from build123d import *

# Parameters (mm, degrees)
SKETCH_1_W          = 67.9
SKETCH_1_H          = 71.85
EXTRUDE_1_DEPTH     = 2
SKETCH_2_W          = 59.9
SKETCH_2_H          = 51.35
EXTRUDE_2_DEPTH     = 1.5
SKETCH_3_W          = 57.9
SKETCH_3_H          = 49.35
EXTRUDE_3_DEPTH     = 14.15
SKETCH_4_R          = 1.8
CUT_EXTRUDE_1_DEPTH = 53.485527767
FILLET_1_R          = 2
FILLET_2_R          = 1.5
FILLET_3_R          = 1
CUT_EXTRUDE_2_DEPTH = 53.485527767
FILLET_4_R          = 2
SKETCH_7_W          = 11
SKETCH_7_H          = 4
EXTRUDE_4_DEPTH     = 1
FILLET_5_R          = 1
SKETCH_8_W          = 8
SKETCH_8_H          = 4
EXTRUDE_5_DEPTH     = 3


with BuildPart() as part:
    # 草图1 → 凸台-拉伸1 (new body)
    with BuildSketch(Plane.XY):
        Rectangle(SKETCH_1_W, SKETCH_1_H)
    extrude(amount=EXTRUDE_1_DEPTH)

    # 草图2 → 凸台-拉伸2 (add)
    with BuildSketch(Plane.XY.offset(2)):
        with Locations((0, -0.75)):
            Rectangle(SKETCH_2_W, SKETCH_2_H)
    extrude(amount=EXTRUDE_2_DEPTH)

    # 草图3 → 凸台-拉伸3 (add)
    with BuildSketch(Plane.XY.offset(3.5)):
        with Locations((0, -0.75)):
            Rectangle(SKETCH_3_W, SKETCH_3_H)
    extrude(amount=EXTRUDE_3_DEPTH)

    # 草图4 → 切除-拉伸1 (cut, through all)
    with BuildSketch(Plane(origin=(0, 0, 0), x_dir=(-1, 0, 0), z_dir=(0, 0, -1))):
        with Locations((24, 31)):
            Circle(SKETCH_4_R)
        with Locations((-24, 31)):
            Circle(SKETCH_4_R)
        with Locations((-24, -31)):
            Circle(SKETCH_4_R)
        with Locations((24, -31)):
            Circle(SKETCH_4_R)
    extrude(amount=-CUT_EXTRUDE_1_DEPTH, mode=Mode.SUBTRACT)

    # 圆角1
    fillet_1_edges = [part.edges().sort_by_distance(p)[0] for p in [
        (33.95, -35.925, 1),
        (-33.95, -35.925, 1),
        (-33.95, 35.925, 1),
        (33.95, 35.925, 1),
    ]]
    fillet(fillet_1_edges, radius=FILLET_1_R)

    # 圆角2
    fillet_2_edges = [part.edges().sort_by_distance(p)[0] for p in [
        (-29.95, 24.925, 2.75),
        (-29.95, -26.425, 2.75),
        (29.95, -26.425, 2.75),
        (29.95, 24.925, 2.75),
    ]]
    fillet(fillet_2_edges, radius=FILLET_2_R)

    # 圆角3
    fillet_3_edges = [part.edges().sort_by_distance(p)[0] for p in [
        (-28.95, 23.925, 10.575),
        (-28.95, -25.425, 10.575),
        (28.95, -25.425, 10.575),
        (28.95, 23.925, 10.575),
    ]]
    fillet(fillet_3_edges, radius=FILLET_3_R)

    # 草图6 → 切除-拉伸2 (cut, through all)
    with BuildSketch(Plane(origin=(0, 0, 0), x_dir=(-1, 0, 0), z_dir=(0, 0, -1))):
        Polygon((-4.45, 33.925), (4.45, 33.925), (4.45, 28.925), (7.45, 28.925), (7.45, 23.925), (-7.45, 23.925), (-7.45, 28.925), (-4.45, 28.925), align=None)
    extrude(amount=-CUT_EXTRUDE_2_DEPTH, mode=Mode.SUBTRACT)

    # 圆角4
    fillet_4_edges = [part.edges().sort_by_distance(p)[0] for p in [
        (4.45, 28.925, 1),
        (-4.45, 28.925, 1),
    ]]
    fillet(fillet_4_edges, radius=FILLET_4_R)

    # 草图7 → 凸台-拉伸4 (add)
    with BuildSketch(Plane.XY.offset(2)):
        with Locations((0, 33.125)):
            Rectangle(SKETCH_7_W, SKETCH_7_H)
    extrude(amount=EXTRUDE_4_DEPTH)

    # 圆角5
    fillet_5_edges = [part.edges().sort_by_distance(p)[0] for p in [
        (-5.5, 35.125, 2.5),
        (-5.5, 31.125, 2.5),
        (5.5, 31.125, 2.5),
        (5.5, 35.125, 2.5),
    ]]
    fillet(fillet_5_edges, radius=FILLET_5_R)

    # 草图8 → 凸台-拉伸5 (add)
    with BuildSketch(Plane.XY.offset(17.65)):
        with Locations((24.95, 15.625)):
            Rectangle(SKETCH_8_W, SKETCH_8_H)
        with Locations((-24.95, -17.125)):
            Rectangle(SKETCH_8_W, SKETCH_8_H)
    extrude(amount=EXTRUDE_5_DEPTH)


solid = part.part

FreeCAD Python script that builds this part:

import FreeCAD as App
import Part
import Sketcher

V = App.Vector
Q = App.Units.Quantity


def edges_at(feature, points):
    """Names of the edges that pass closest to the given points."""
    edges = feature.Shape.Edges
    near = lambda p: min(range(len(edges)), key=lambda i: edges[i].distToShape(Part.Vertex(*p))[0])
    return sorted({f"Edge{near(p) + 1}" for p in points})

doc = App.newDocument("Part")
body = doc.addObject("PartDesign::Body", "Body")

sketch1 = body.newObject("Sketcher::SketchObject", "Sketch")
sketch1.AttachmentSupport = (doc.getObject("XY_Plane"), [""])
sketch1.MapMode = "FlatFace"
sketch1.addGeometry([
    Part.LineSegment(V(-34, 36, 0), V(-34, -36, 0)),
    Part.LineSegment(V(-34, -36, 0), V(34, -36, 0)),
    Part.LineSegment(V(34, -36, 0), V(34, 36, 0)),
    Part.LineSegment(V(34, 36, 0), V(-34, 36, 0)),
], False)
sketch1.addConstraint([
    Sketcher.Constraint("Coincident", 0, 2, 1, 1),
    Sketcher.Constraint("Coincident", 1, 2, 2, 1),
    Sketcher.Constraint("Coincident", 2, 2, 3, 1),
    Sketcher.Constraint("Coincident", 3, 2, 0, 1),
    Sketcher.Constraint("Vertical", 0),
    Sketcher.Constraint("Horizontal", 1),
    Sketcher.Constraint("Vertical", 2),
    Sketcher.Constraint("Horizontal", 3),
    Sketcher.Constraint("Symmetric", 0, 2, 2, 2, -1, 1),
    Sketcher.Constraint("DistanceX", 1, 1, 1, 2, Q("67.9 mm")),
    Sketcher.Constraint("DistanceY", 0, 2, 0, 1, Q("71.85 mm")),
])
pad1 = body.newObject("PartDesign::Pad", "Pad")
pad1.Profile = sketch1
pad1.Length = 2

sketch2 = body.newObject("Sketcher::SketchObject", "Sketch001")
sketch2.AttachmentSupport = (doc.getObject("XY_Plane"), [""])
sketch2.MapMode = "FlatFace"
sketch2.AttachmentOffset = App.Placement(V(0, 0, 2), App.Rotation())
sketch2.addGeometry([
    Part.LineSegment(V(-30, 25, 0), V(-30, -26, 0)),
    Part.LineSegment(V(-30, -26, 0), V(30, -26, 0)),
    Part.LineSegment(V(30, -26, 0), V(30, 25, 0)),
    Part.LineSegment(V(30, 25, 0), V(-30, 25, 0)),
], False)
sketch2.addConstraint([
    Sketcher.Constraint("Coincident", 0, 2, 1, 1),
    Sketcher.Constraint("Coincident", 1, 2, 2, 1),
    Sketcher.Constraint("Coincident", 2, 2, 3, 1),
    Sketcher.Constraint("Coincident", 3, 2, 0, 1),
    Sketcher.Constraint("Vertical", 0),
    Sketcher.Constraint("Horizontal", 1),
    Sketcher.Constraint("Vertical", 2),
    Sketcher.Constraint("Horizontal", 3),
    Sketcher.Constraint("DistanceX", 1, 1, 1, 2, Q("59.9 mm")),
    Sketcher.Constraint("DistanceY", 0, 2, 0, 1, Q("51.35 mm")),
    Sketcher.Constraint("DistanceX", 0, 2, -1, 1, Q("29.95 mm")),
    Sketcher.Constraint("DistanceY", 0, 2, -1, 1, Q("26.425 mm")),
])
pad2 = body.newObject("PartDesign::Pad", "Pad001")
pad2.Profile = sketch2
pad2.Length = 1.5

sketch3 = body.newObject("Sketcher::SketchObject", "Sketch002")
sketch3.AttachmentSupport = (doc.getObject("XY_Plane"), [""])
sketch3.MapMode = "FlatFace"
sketch3.AttachmentOffset = App.Placement(V(0, 0, 3.5), App.Rotation())
sketch3.addGeometry([
    Part.LineSegment(V(-29, 24, 0), V(-29, -25, 0)),
    Part.LineSegment(V(-29, -25, 0), V(29, -25, 0)),
    Part.LineSegment(V(29, -25, 0), V(29, 24, 0)),
    Part.LineSegment(V(29, 24, 0), V(-29, 24, 0)),
], False)
sketch3.addConstraint([
    Sketcher.Constraint("Coincident", 0, 2, 1, 1),
    Sketcher.Constraint("Coincident", 1, 2, 2, 1),
    Sketcher.Constraint("Coincident", 2, 2, 3, 1),
    Sketcher.Constraint("Coincident", 3, 2, 0, 1),
    Sketcher.Constraint("Vertical", 0),
    Sketcher.Constraint("Horizontal", 1),
    Sketcher.Constraint("Vertical", 2),
    Sketcher.Constraint("Horizontal", 3),
    Sketcher.Constraint("DistanceX", 1, 1, 1, 2, Q("57.9 mm")),
    Sketcher.Constraint("DistanceY", 0, 2, 0, 1, Q("49.35 mm")),
    Sketcher.Constraint("DistanceX", 0, 2, -1, 1, Q("28.95 mm")),
    Sketcher.Constraint("DistanceY", 0, 2, -1, 1, Q("25.425 mm")),
])
pad3 = body.newObject("PartDesign::Pad", "Pad002")
pad3.Profile = sketch3
pad3.Length = 14.15

sketch4 = body.newObject("Sketcher::SketchObject", "Sketch003")
sketch4.AttachmentSupport = (doc.getObject("XY_Plane"), [""])
sketch4.MapMode = "FlatFace"
sketch4.addGeometry([
    Part.Circle(V(-24, 31, 0), V(0, 0, 1), 1.8),
    Part.Circle(V(24, 31, 0), V(0, 0, 1), 1.8),
    Part.Circle(V(24, -31, 0), V(0, 0, 1), 1.8),
    Part.Circle(V(-24, -31, 0), V(0, 0, 1), 1.8),
], False)
sketch4.addConstraint([
    Sketcher.Constraint("Equal", 0, 1),
    Sketcher.Constraint("Equal", 1, 2),
    Sketcher.Constraint("Equal", 2, 3),
    Sketcher.Constraint("Symmetric", 0, 3, 2, 3, -1, 1),
    Sketcher.Constraint("Symmetric", 1, 3, 3, 3, -1, 1),
    Sketcher.Constraint("Symmetric", 0, 3, 1, 3, -2),
    Sketcher.Constraint("Diameter", 0, Q("3.6 mm")),
    Sketcher.Constraint("DistanceX", 0, 3, -1, 1, Q("24 mm")),
    Sketcher.Constraint("DistanceY", -1, 1, 0, 3, Q("31 mm")),
])
pocket1 = body.newObject("PartDesign::Pocket", "Pocket")
pocket1.Profile = sketch4
pocket1.Type = "ThroughAll"
pocket1.Reversed = True
doc.recompute()

fillet = body.newObject("PartDesign::Fillet", "Fillet")
fillet.Base = (pocket1, edges_at(pocket1, [
    (33.95, -35.925, 1),
    (-33.95, -35.925, 1),
    (-33.95, 35.925, 1),
    (33.95, 35.925, 1),
]))
fillet.Radius = 2
doc.recompute()

fillet2 = body.newObject("PartDesign::Fillet", "Fillet001")
fillet2.Base = (fillet, edges_at(fillet, [
    (-29.95, 24.925, 2.75),
    (-29.95, -26.425, 2.75),
    (29.95, -26.425, 2.75),
    (29.95, 24.925, 2.75),
]))
fillet2.Radius = 1.5
doc.recompute()

fillet3 = body.newObject("PartDesign::Fillet", "Fillet002")
fillet3.Base = (fillet2, edges_at(fillet2, [
    (-28.95, 23.925, 10.575),
    (-28.95, -25.425, 10.575),
    (28.95, -25.425, 10.575),
    (28.95, 23.925, 10.575),
]))
fillet3.Radius = 1

sketch5 = body.newObject("Sketcher::SketchObject", "Sketch004")
sketch5.AttachmentSupport = (doc.getObject("XY_Plane"), [""])
sketch5.MapMode = "FlatFace"
sketch5.addGeometry([
    Part.LineSegment(V(-4.5, 33.9, 0), V(4.5, 33.9, 0)),
    Part.LineSegment(V(4.5, 33.9, 0), V(4.5, 28.9, 0)),
    Part.LineSegment(V(4.5, 28.9, 0), V(7.5, 28.9, 0)),
    Part.LineSegment(V(7.5, 28.9, 0), V(7.5, 23.9, 0)),
    Part.LineSegment(V(7.5, 23.9, 0), V(-7.5, 23.9, 0)),
    Part.LineSegment(V(-7.5, 23.9, 0), V(-7.5, 28.9, 0)),
    Part.LineSegment(V(-7.5, 28.9, 0), V(-4.5, 28.9, 0)),
    Part.LineSegment(V(-4.5, 28.9, 0), V(-4.5, 33.9, 0)),
], False)
sketch5.addConstraint([
    Sketcher.Constraint("Coincident", 0, 2, 1, 1),
    Sketcher.Constraint("Coincident", 1, 2, 2, 1),
    Sketcher.Constraint("Coincident", 2, 2, 3, 1),
    Sketcher.Constraint("Coincident", 3, 2, 4, 1),
    Sketcher.Constraint("Coincident", 4, 2, 5, 1),
    Sketcher.Constraint("Coincident", 5, 2, 6, 1),
    Sketcher.Constraint("Coincident", 6, 2, 7, 1),
    Sketcher.Constraint("Coincident", 7, 2, 0, 1),
    Sketcher.Constraint("Horizontal", 0),
    Sketcher.Constraint("Vertical", 1),
    Sketcher.Constraint("Horizontal", 2),
    Sketcher.Constraint("Vertical", 3),
    Sketcher.Constraint("Horizontal", 4),
    Sketcher.Constraint("Vertical", 5),
    Sketcher.Constraint("Horizontal", 6),
    Sketcher.Constraint("Vertical", 7),
    Sketcher.Constraint("Symmetric", 2, 2, 5, 2, -2),
    Sketcher.Constraint("Equal", 2, 6),
    Sketcher.Constraint("Equal", 1, 3),
    Sketcher.Constraint("DistanceX", 2, 1, 2, 2, Q("3 mm")),
    Sketcher.Constraint("DistanceY", 1, 2, 1, 1, Q("5 mm")),
    Sketcher.Constraint("DistanceX", 0, 1, 0, 2, Q("8.9 mm")),
    Sketcher.Constraint("DistanceY", -1, 1, 0, 2, Q("33.925 mm")),
])
pocket2 = body.newObject("PartDesign::Pocket", "Pocket001")
pocket2.Profile = sketch5
pocket2.Type = "ThroughAll"
pocket2.Reversed = True
doc.recompute()

fillet4 = body.newObject("PartDesign::Fillet", "Fillet003")
fillet4.Base = (pocket2, edges_at(pocket2, [(4.45, 28.925, 1), (-4.45, 28.925, 1)]))
fillet4.Radius = 2

sketch6 = body.newObject("Sketcher::SketchObject", "Sketch005")
sketch6.AttachmentSupport = (doc.getObject("XY_Plane"), [""])
sketch6.MapMode = "FlatFace"
sketch6.AttachmentOffset = App.Placement(V(0, 0, 2), App.Rotation())
sketch6.addGeometry([
    Part.LineSegment(V(-5.5, 35.1, 0), V(-5.5, 31.1, 0)),
    Part.LineSegment(V(-5.5, 31.1, 0), V(5.5, 31.1, 0)),
    Part.LineSegment(V(5.5, 31.1, 0), V(5.5, 35.1, 0)),
    Part.LineSegment(V(5.5, 35.1, 0), V(-5.5, 35.1, 0)),
], False)
sketch6.addConstraint([
    Sketcher.Constraint("Coincident", 0, 2, 1, 1),
    Sketcher.Constraint("Coincident", 1, 2, 2, 1),
    Sketcher.Constraint("Coincident", 2, 2, 3, 1),
    Sketcher.Constraint("Coincident", 3, 2, 0, 1),
    Sketcher.Constraint("Vertical", 0),
    Sketcher.Constraint("Horizontal", 1),
    Sketcher.Constraint("Vertical", 2),
    Sketcher.Constraint("Horizontal", 3),
    Sketcher.Constraint("DistanceX", 1, 1, 1, 2, Q("11 mm")),
    Sketcher.Constraint("DistanceY", 0, 2, 0, 1, Q("4 mm")),
    Sketcher.Constraint("DistanceX", 0, 2, -1, 1, Q("5.5 mm")),
    Sketcher.Constraint("DistanceY", -1, 1, 0, 2, Q("31.125 mm")),
])
pad4 = body.newObject("PartDesign::Pad", "Pad003")
pad4.Profile = sketch6
pad4.Length = 1
doc.recompute()

fillet5 = body.newObject("PartDesign::Fillet", "Fillet004")
fillet5.Base = (pad4, edges_at(pad4, [
    (-5.5, 35.125, 2.5),
    (-5.5, 31.125, 2.5),
    (5.5, 31.125, 2.5),
    (5.5, 35.125, 2.5),
]))
fillet5.Radius = 1

sketch7 = body.newObject("Sketcher::SketchObject", "Sketch006")
sketch7.AttachmentSupport = (doc.getObject("XY_Plane"), [""])
sketch7.MapMode = "FlatFace"
sketch7.AttachmentOffset = App.Placement(V(0, 0, 17.65), App.Rotation())
sketch7.addGeometry([
    Part.LineSegment(V(20.9, 17.6, 0), V(20.9, 13.6, 0)),
    Part.LineSegment(V(20.9, 13.6, 0), V(28.9, 13.6, 0)),
    Part.LineSegment(V(28.9, 13.6, 0), V(28.9, 17.6, 0)),
    Part.LineSegment(V(28.9, 17.6, 0), V(20.9, 17.6, 0)),
    Part.LineSegment(V(-28.9, -15.1, 0), V(-28.9, -19.1, 0)),
    Part.LineSegment(V(-28.9, -19.1, 0), V(-20.9, -19.1, 0)),
    Part.LineSegment(V(-20.9, -19.1, 0), V(-20.9, -15.1, 0)),
    Part.LineSegment(V(-20.9, -15.1, 0), V(-28.9, -15.1, 0)),
], False)
sketch7.addConstraint([
    Sketcher.Constraint("Coincident", 0, 2, 1, 1),
    Sketcher.Constraint("Coincident", 1, 2, 2, 1),
    Sketcher.Constraint("Coincident", 2, 2, 3, 1),
    Sketcher.Constraint("Coincident", 3, 2, 0, 1),
    Sketcher.Constraint("Coincident", 4, 2, 5, 1),
    Sketcher.Constraint("Coincident", 5, 2, 6, 1),
    Sketcher.Constraint("Coincident", 6, 2, 7, 1),
    Sketcher.Constraint("Coincident", 7, 2, 4, 1),
    Sketcher.Constraint("Vertical", 0),
    Sketcher.Constraint("Horizontal", 1),
    Sketcher.Constraint("Vertical", 2),
    Sketcher.Constraint("Horizontal", 3),
    Sketcher.Constraint("Vertical", 4),
    Sketcher.Constraint("Horizontal", 5),
    Sketcher.Constraint("Vertical", 6),
    Sketcher.Constraint("Horizontal", 7),
    Sketcher.Constraint("Equal", 3, 5),
    Sketcher.Constraint("Equal", 2, 4),
    Sketcher.Constraint("DistanceX", 1, 1, 1, 2, Q("8 mm")),
    Sketcher.Constraint("DistanceY", 0, 2, 0, 1, Q("4 mm")),
    Sketcher.Constraint("DistanceX", 4, 2, 0, 2, Q("49.9 mm")),
    Sketcher.Constraint("DistanceX", -1, 1, 0, 2, Q("20.95 mm")),
    Sketcher.Constraint("DistanceY", 4, 2, 0, 2, Q("32.75 mm")),
    Sketcher.Constraint("DistanceY", -1, 1, 0, 2, Q("13.625 mm")),
])
pad5 = body.newObject("PartDesign::Pad", "Pad004")
pad5.Profile = sketch7
pad5.Length = 3

doc.recompute()
